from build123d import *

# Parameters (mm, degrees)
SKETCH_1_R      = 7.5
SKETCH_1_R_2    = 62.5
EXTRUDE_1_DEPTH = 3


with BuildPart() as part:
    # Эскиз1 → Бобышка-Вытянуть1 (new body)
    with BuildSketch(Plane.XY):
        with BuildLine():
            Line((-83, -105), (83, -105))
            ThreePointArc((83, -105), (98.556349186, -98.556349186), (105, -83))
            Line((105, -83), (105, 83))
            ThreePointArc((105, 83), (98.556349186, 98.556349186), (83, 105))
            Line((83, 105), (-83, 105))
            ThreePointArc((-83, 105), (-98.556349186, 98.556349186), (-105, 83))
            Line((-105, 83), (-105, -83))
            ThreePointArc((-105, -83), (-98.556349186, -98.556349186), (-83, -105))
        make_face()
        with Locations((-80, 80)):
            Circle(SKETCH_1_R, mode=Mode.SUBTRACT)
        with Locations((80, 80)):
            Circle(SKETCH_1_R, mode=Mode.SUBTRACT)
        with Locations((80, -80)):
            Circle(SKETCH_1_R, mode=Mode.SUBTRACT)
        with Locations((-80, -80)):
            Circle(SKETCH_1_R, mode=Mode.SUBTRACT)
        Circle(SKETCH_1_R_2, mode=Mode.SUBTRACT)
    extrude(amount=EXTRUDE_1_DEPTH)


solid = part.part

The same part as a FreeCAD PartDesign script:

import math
import FreeCAD as App
import Part
import Sketcher
from FreeCAD import Vector

doc = App.newDocument("Part")
body = doc.addObject("PartDesign::Body", "Body")

# Sketch on XY plane
sketch1 = body.newObject("Sketcher::SketchObject", "Sketch")
sketch1.AttachmentSupport = (doc.getObject("XY_Plane"), [""])
sketch1.MapMode = "FlatFace"
sketch1.addGeometry(Part.LineSegment(Vector(-83, -105, 0), Vector(83, -105, 0)), False)
sketch1.addGeometry(Part.ArcOfCircle(Part.Circle(Vector(83, -83, 0), Vector(0, 0, 1), 22), math.radians(-90), math.radians(0)), False)
sketch1.addGeometry(Part.LineSegment(Vector(105, -83, 0), Vector(105, 83, 0)), False)
sketch1.addGeometry(Part.ArcOfCircle(Part.Circle(Vector(83, 83, 0), Vector(0, 0, 1), 22), math.radians(0), math.radians(90)), False)
sketch1.addGeometry(Part.LineSegment(Vector(83, 105, 0), Vector(-83, 105, 0)), False)
sketch1.addGeometry(Part.ArcOfCircle(Part.Circle(Vector(-83, 83, 0), Vector(0, 0, 1), 22), math.radians(90), math.radians(180)), False)
sketch1.addGeometry(Part.LineSegment(Vector(-105, 83, 0), Vector(-105, -83, 0)), False)
sketch1.addGeometry(Part.ArcOfCircle(Part.Circle(Vector(-83, -83, 0), Vector(0, 0, 1), 22), math.radians(180), math.radians(270)), False)
sketch1.addGeometry(Part.Circle(Vector(-80, -80, 0), Vector(0, 0, 1), 7.5), False)
sketch1.addGeometry(Part.Circle(Vector(80, -80, 0), Vector(0, 0, 1), 7.5), False)
sketch1.addGeometry(Part.Circle(Vector(-80, 80, 0), Vector(0, 0, 1), 7.5), False)
sketch1.addGeometry(Part.Circle(Vector(0, 0, 0), Vector(0, 0, 1), 62.5), False)
sketch1.addGeometry(Part.Circle(Vector(80, 80, 0), Vector(0, 0, 1), 7.5), False)
sketch1.addConstraint(Sketcher.Constraint("Tangent", 0, 2, 1, 1))
sketch1.addConstraint(Sketcher.Constraint("Tangent", 1, 2, 2, 1))
sketch1.addConstraint(Sketcher.Constraint("Tangent", 2, 2, 3, 1))
sketch1.addConstraint(Sketcher.Constraint("Tangent", 3, 2, 4, 1))
sketch1.addConstraint(Sketcher.Constraint("Tangent", 4, 2, 5, 1))
sketch1.addConstraint(Sketcher.Constraint("Tangent", 5, 2, 6, 1))
sketch1.addConstraint(Sketcher.Constraint("Tangent", 6, 2, 7, 1))
sketch1.addConstraint(Sketcher.Constraint("Tangent", 7, 2, 0, 1))
sketch1.addConstraint(Sketcher.Constraint("Horizontal", 0))
sketch1.addConstraint(Sketcher.Constraint("Vertical", 2))
sketch1.addConstraint(Sketcher.Constraint("Horizontal", 4))
sketch1.addConstraint(Sketcher.Constraint("Vertical", 6))
sketch1.addConstraint(Sketcher.Constraint("Coincident", 11, 3, -1, 1))
sketch1.addConstraint(Sketcher.Constraint("Equal", 1, 3))
sketch1.addConstraint(Sketcher.Constraint("Equal", 3, 5))
sketch1.addConstraint(Sketcher.Constraint("Equal", 5, 7))
sketch1.addConstraint(Sketcher.Constraint("Equal", 8, 9))
sketch1.addConstraint(Sketcher.Constraint("Equal", 9, 10))
sketch1.addConstraint(Sketcher.Constraint("Equal", 10, 12))
sketch1.addConstraint(Sketcher.Constraint("Symmetric", 1, 3, 5, 3, -1, 1))
sketch1.addConstraint(Sketcher.Constraint("Symmetric", 9, 3, 10, 3, -1, 1))
sketch1.addConstraint(Sketcher.Constraint("Symmetric", 8, 3, 12, 3, -1, 1))
sketch1.addConstraint(Sketcher.Constraint("Symmetric", 8, 3, 9, 3, -2))
sketch1.addConstraint(Sketcher.Constraint("Equal", 4, 2))
sketch1.addConstraint(Sketcher.Constraint("Diameter", 8, 15.0))
sketch1.addConstraint(Sketcher.Constraint("Diameter", 11, 125.0))
sketch1.addConstraint(Sketcher.Constraint("Radius", 1, 22.0))
sketch1.addConstraint(Sketcher.Constraint("DistanceX", 0, 1, 0, 2, 166.0))
sketch1.addConstraint(Sketcher.Constraint("DistanceX", 8, 3, -1, 1, 80.0))
sketch1.addConstraint(Sketcher.Constraint("DistanceY", 8, 3, -1, 1, 80.0))
pad1 = body.newObject("PartDesign::Pad", "Pad")
pad1.Profile = sketch1
pad1.Length = 3

doc.recompute()
